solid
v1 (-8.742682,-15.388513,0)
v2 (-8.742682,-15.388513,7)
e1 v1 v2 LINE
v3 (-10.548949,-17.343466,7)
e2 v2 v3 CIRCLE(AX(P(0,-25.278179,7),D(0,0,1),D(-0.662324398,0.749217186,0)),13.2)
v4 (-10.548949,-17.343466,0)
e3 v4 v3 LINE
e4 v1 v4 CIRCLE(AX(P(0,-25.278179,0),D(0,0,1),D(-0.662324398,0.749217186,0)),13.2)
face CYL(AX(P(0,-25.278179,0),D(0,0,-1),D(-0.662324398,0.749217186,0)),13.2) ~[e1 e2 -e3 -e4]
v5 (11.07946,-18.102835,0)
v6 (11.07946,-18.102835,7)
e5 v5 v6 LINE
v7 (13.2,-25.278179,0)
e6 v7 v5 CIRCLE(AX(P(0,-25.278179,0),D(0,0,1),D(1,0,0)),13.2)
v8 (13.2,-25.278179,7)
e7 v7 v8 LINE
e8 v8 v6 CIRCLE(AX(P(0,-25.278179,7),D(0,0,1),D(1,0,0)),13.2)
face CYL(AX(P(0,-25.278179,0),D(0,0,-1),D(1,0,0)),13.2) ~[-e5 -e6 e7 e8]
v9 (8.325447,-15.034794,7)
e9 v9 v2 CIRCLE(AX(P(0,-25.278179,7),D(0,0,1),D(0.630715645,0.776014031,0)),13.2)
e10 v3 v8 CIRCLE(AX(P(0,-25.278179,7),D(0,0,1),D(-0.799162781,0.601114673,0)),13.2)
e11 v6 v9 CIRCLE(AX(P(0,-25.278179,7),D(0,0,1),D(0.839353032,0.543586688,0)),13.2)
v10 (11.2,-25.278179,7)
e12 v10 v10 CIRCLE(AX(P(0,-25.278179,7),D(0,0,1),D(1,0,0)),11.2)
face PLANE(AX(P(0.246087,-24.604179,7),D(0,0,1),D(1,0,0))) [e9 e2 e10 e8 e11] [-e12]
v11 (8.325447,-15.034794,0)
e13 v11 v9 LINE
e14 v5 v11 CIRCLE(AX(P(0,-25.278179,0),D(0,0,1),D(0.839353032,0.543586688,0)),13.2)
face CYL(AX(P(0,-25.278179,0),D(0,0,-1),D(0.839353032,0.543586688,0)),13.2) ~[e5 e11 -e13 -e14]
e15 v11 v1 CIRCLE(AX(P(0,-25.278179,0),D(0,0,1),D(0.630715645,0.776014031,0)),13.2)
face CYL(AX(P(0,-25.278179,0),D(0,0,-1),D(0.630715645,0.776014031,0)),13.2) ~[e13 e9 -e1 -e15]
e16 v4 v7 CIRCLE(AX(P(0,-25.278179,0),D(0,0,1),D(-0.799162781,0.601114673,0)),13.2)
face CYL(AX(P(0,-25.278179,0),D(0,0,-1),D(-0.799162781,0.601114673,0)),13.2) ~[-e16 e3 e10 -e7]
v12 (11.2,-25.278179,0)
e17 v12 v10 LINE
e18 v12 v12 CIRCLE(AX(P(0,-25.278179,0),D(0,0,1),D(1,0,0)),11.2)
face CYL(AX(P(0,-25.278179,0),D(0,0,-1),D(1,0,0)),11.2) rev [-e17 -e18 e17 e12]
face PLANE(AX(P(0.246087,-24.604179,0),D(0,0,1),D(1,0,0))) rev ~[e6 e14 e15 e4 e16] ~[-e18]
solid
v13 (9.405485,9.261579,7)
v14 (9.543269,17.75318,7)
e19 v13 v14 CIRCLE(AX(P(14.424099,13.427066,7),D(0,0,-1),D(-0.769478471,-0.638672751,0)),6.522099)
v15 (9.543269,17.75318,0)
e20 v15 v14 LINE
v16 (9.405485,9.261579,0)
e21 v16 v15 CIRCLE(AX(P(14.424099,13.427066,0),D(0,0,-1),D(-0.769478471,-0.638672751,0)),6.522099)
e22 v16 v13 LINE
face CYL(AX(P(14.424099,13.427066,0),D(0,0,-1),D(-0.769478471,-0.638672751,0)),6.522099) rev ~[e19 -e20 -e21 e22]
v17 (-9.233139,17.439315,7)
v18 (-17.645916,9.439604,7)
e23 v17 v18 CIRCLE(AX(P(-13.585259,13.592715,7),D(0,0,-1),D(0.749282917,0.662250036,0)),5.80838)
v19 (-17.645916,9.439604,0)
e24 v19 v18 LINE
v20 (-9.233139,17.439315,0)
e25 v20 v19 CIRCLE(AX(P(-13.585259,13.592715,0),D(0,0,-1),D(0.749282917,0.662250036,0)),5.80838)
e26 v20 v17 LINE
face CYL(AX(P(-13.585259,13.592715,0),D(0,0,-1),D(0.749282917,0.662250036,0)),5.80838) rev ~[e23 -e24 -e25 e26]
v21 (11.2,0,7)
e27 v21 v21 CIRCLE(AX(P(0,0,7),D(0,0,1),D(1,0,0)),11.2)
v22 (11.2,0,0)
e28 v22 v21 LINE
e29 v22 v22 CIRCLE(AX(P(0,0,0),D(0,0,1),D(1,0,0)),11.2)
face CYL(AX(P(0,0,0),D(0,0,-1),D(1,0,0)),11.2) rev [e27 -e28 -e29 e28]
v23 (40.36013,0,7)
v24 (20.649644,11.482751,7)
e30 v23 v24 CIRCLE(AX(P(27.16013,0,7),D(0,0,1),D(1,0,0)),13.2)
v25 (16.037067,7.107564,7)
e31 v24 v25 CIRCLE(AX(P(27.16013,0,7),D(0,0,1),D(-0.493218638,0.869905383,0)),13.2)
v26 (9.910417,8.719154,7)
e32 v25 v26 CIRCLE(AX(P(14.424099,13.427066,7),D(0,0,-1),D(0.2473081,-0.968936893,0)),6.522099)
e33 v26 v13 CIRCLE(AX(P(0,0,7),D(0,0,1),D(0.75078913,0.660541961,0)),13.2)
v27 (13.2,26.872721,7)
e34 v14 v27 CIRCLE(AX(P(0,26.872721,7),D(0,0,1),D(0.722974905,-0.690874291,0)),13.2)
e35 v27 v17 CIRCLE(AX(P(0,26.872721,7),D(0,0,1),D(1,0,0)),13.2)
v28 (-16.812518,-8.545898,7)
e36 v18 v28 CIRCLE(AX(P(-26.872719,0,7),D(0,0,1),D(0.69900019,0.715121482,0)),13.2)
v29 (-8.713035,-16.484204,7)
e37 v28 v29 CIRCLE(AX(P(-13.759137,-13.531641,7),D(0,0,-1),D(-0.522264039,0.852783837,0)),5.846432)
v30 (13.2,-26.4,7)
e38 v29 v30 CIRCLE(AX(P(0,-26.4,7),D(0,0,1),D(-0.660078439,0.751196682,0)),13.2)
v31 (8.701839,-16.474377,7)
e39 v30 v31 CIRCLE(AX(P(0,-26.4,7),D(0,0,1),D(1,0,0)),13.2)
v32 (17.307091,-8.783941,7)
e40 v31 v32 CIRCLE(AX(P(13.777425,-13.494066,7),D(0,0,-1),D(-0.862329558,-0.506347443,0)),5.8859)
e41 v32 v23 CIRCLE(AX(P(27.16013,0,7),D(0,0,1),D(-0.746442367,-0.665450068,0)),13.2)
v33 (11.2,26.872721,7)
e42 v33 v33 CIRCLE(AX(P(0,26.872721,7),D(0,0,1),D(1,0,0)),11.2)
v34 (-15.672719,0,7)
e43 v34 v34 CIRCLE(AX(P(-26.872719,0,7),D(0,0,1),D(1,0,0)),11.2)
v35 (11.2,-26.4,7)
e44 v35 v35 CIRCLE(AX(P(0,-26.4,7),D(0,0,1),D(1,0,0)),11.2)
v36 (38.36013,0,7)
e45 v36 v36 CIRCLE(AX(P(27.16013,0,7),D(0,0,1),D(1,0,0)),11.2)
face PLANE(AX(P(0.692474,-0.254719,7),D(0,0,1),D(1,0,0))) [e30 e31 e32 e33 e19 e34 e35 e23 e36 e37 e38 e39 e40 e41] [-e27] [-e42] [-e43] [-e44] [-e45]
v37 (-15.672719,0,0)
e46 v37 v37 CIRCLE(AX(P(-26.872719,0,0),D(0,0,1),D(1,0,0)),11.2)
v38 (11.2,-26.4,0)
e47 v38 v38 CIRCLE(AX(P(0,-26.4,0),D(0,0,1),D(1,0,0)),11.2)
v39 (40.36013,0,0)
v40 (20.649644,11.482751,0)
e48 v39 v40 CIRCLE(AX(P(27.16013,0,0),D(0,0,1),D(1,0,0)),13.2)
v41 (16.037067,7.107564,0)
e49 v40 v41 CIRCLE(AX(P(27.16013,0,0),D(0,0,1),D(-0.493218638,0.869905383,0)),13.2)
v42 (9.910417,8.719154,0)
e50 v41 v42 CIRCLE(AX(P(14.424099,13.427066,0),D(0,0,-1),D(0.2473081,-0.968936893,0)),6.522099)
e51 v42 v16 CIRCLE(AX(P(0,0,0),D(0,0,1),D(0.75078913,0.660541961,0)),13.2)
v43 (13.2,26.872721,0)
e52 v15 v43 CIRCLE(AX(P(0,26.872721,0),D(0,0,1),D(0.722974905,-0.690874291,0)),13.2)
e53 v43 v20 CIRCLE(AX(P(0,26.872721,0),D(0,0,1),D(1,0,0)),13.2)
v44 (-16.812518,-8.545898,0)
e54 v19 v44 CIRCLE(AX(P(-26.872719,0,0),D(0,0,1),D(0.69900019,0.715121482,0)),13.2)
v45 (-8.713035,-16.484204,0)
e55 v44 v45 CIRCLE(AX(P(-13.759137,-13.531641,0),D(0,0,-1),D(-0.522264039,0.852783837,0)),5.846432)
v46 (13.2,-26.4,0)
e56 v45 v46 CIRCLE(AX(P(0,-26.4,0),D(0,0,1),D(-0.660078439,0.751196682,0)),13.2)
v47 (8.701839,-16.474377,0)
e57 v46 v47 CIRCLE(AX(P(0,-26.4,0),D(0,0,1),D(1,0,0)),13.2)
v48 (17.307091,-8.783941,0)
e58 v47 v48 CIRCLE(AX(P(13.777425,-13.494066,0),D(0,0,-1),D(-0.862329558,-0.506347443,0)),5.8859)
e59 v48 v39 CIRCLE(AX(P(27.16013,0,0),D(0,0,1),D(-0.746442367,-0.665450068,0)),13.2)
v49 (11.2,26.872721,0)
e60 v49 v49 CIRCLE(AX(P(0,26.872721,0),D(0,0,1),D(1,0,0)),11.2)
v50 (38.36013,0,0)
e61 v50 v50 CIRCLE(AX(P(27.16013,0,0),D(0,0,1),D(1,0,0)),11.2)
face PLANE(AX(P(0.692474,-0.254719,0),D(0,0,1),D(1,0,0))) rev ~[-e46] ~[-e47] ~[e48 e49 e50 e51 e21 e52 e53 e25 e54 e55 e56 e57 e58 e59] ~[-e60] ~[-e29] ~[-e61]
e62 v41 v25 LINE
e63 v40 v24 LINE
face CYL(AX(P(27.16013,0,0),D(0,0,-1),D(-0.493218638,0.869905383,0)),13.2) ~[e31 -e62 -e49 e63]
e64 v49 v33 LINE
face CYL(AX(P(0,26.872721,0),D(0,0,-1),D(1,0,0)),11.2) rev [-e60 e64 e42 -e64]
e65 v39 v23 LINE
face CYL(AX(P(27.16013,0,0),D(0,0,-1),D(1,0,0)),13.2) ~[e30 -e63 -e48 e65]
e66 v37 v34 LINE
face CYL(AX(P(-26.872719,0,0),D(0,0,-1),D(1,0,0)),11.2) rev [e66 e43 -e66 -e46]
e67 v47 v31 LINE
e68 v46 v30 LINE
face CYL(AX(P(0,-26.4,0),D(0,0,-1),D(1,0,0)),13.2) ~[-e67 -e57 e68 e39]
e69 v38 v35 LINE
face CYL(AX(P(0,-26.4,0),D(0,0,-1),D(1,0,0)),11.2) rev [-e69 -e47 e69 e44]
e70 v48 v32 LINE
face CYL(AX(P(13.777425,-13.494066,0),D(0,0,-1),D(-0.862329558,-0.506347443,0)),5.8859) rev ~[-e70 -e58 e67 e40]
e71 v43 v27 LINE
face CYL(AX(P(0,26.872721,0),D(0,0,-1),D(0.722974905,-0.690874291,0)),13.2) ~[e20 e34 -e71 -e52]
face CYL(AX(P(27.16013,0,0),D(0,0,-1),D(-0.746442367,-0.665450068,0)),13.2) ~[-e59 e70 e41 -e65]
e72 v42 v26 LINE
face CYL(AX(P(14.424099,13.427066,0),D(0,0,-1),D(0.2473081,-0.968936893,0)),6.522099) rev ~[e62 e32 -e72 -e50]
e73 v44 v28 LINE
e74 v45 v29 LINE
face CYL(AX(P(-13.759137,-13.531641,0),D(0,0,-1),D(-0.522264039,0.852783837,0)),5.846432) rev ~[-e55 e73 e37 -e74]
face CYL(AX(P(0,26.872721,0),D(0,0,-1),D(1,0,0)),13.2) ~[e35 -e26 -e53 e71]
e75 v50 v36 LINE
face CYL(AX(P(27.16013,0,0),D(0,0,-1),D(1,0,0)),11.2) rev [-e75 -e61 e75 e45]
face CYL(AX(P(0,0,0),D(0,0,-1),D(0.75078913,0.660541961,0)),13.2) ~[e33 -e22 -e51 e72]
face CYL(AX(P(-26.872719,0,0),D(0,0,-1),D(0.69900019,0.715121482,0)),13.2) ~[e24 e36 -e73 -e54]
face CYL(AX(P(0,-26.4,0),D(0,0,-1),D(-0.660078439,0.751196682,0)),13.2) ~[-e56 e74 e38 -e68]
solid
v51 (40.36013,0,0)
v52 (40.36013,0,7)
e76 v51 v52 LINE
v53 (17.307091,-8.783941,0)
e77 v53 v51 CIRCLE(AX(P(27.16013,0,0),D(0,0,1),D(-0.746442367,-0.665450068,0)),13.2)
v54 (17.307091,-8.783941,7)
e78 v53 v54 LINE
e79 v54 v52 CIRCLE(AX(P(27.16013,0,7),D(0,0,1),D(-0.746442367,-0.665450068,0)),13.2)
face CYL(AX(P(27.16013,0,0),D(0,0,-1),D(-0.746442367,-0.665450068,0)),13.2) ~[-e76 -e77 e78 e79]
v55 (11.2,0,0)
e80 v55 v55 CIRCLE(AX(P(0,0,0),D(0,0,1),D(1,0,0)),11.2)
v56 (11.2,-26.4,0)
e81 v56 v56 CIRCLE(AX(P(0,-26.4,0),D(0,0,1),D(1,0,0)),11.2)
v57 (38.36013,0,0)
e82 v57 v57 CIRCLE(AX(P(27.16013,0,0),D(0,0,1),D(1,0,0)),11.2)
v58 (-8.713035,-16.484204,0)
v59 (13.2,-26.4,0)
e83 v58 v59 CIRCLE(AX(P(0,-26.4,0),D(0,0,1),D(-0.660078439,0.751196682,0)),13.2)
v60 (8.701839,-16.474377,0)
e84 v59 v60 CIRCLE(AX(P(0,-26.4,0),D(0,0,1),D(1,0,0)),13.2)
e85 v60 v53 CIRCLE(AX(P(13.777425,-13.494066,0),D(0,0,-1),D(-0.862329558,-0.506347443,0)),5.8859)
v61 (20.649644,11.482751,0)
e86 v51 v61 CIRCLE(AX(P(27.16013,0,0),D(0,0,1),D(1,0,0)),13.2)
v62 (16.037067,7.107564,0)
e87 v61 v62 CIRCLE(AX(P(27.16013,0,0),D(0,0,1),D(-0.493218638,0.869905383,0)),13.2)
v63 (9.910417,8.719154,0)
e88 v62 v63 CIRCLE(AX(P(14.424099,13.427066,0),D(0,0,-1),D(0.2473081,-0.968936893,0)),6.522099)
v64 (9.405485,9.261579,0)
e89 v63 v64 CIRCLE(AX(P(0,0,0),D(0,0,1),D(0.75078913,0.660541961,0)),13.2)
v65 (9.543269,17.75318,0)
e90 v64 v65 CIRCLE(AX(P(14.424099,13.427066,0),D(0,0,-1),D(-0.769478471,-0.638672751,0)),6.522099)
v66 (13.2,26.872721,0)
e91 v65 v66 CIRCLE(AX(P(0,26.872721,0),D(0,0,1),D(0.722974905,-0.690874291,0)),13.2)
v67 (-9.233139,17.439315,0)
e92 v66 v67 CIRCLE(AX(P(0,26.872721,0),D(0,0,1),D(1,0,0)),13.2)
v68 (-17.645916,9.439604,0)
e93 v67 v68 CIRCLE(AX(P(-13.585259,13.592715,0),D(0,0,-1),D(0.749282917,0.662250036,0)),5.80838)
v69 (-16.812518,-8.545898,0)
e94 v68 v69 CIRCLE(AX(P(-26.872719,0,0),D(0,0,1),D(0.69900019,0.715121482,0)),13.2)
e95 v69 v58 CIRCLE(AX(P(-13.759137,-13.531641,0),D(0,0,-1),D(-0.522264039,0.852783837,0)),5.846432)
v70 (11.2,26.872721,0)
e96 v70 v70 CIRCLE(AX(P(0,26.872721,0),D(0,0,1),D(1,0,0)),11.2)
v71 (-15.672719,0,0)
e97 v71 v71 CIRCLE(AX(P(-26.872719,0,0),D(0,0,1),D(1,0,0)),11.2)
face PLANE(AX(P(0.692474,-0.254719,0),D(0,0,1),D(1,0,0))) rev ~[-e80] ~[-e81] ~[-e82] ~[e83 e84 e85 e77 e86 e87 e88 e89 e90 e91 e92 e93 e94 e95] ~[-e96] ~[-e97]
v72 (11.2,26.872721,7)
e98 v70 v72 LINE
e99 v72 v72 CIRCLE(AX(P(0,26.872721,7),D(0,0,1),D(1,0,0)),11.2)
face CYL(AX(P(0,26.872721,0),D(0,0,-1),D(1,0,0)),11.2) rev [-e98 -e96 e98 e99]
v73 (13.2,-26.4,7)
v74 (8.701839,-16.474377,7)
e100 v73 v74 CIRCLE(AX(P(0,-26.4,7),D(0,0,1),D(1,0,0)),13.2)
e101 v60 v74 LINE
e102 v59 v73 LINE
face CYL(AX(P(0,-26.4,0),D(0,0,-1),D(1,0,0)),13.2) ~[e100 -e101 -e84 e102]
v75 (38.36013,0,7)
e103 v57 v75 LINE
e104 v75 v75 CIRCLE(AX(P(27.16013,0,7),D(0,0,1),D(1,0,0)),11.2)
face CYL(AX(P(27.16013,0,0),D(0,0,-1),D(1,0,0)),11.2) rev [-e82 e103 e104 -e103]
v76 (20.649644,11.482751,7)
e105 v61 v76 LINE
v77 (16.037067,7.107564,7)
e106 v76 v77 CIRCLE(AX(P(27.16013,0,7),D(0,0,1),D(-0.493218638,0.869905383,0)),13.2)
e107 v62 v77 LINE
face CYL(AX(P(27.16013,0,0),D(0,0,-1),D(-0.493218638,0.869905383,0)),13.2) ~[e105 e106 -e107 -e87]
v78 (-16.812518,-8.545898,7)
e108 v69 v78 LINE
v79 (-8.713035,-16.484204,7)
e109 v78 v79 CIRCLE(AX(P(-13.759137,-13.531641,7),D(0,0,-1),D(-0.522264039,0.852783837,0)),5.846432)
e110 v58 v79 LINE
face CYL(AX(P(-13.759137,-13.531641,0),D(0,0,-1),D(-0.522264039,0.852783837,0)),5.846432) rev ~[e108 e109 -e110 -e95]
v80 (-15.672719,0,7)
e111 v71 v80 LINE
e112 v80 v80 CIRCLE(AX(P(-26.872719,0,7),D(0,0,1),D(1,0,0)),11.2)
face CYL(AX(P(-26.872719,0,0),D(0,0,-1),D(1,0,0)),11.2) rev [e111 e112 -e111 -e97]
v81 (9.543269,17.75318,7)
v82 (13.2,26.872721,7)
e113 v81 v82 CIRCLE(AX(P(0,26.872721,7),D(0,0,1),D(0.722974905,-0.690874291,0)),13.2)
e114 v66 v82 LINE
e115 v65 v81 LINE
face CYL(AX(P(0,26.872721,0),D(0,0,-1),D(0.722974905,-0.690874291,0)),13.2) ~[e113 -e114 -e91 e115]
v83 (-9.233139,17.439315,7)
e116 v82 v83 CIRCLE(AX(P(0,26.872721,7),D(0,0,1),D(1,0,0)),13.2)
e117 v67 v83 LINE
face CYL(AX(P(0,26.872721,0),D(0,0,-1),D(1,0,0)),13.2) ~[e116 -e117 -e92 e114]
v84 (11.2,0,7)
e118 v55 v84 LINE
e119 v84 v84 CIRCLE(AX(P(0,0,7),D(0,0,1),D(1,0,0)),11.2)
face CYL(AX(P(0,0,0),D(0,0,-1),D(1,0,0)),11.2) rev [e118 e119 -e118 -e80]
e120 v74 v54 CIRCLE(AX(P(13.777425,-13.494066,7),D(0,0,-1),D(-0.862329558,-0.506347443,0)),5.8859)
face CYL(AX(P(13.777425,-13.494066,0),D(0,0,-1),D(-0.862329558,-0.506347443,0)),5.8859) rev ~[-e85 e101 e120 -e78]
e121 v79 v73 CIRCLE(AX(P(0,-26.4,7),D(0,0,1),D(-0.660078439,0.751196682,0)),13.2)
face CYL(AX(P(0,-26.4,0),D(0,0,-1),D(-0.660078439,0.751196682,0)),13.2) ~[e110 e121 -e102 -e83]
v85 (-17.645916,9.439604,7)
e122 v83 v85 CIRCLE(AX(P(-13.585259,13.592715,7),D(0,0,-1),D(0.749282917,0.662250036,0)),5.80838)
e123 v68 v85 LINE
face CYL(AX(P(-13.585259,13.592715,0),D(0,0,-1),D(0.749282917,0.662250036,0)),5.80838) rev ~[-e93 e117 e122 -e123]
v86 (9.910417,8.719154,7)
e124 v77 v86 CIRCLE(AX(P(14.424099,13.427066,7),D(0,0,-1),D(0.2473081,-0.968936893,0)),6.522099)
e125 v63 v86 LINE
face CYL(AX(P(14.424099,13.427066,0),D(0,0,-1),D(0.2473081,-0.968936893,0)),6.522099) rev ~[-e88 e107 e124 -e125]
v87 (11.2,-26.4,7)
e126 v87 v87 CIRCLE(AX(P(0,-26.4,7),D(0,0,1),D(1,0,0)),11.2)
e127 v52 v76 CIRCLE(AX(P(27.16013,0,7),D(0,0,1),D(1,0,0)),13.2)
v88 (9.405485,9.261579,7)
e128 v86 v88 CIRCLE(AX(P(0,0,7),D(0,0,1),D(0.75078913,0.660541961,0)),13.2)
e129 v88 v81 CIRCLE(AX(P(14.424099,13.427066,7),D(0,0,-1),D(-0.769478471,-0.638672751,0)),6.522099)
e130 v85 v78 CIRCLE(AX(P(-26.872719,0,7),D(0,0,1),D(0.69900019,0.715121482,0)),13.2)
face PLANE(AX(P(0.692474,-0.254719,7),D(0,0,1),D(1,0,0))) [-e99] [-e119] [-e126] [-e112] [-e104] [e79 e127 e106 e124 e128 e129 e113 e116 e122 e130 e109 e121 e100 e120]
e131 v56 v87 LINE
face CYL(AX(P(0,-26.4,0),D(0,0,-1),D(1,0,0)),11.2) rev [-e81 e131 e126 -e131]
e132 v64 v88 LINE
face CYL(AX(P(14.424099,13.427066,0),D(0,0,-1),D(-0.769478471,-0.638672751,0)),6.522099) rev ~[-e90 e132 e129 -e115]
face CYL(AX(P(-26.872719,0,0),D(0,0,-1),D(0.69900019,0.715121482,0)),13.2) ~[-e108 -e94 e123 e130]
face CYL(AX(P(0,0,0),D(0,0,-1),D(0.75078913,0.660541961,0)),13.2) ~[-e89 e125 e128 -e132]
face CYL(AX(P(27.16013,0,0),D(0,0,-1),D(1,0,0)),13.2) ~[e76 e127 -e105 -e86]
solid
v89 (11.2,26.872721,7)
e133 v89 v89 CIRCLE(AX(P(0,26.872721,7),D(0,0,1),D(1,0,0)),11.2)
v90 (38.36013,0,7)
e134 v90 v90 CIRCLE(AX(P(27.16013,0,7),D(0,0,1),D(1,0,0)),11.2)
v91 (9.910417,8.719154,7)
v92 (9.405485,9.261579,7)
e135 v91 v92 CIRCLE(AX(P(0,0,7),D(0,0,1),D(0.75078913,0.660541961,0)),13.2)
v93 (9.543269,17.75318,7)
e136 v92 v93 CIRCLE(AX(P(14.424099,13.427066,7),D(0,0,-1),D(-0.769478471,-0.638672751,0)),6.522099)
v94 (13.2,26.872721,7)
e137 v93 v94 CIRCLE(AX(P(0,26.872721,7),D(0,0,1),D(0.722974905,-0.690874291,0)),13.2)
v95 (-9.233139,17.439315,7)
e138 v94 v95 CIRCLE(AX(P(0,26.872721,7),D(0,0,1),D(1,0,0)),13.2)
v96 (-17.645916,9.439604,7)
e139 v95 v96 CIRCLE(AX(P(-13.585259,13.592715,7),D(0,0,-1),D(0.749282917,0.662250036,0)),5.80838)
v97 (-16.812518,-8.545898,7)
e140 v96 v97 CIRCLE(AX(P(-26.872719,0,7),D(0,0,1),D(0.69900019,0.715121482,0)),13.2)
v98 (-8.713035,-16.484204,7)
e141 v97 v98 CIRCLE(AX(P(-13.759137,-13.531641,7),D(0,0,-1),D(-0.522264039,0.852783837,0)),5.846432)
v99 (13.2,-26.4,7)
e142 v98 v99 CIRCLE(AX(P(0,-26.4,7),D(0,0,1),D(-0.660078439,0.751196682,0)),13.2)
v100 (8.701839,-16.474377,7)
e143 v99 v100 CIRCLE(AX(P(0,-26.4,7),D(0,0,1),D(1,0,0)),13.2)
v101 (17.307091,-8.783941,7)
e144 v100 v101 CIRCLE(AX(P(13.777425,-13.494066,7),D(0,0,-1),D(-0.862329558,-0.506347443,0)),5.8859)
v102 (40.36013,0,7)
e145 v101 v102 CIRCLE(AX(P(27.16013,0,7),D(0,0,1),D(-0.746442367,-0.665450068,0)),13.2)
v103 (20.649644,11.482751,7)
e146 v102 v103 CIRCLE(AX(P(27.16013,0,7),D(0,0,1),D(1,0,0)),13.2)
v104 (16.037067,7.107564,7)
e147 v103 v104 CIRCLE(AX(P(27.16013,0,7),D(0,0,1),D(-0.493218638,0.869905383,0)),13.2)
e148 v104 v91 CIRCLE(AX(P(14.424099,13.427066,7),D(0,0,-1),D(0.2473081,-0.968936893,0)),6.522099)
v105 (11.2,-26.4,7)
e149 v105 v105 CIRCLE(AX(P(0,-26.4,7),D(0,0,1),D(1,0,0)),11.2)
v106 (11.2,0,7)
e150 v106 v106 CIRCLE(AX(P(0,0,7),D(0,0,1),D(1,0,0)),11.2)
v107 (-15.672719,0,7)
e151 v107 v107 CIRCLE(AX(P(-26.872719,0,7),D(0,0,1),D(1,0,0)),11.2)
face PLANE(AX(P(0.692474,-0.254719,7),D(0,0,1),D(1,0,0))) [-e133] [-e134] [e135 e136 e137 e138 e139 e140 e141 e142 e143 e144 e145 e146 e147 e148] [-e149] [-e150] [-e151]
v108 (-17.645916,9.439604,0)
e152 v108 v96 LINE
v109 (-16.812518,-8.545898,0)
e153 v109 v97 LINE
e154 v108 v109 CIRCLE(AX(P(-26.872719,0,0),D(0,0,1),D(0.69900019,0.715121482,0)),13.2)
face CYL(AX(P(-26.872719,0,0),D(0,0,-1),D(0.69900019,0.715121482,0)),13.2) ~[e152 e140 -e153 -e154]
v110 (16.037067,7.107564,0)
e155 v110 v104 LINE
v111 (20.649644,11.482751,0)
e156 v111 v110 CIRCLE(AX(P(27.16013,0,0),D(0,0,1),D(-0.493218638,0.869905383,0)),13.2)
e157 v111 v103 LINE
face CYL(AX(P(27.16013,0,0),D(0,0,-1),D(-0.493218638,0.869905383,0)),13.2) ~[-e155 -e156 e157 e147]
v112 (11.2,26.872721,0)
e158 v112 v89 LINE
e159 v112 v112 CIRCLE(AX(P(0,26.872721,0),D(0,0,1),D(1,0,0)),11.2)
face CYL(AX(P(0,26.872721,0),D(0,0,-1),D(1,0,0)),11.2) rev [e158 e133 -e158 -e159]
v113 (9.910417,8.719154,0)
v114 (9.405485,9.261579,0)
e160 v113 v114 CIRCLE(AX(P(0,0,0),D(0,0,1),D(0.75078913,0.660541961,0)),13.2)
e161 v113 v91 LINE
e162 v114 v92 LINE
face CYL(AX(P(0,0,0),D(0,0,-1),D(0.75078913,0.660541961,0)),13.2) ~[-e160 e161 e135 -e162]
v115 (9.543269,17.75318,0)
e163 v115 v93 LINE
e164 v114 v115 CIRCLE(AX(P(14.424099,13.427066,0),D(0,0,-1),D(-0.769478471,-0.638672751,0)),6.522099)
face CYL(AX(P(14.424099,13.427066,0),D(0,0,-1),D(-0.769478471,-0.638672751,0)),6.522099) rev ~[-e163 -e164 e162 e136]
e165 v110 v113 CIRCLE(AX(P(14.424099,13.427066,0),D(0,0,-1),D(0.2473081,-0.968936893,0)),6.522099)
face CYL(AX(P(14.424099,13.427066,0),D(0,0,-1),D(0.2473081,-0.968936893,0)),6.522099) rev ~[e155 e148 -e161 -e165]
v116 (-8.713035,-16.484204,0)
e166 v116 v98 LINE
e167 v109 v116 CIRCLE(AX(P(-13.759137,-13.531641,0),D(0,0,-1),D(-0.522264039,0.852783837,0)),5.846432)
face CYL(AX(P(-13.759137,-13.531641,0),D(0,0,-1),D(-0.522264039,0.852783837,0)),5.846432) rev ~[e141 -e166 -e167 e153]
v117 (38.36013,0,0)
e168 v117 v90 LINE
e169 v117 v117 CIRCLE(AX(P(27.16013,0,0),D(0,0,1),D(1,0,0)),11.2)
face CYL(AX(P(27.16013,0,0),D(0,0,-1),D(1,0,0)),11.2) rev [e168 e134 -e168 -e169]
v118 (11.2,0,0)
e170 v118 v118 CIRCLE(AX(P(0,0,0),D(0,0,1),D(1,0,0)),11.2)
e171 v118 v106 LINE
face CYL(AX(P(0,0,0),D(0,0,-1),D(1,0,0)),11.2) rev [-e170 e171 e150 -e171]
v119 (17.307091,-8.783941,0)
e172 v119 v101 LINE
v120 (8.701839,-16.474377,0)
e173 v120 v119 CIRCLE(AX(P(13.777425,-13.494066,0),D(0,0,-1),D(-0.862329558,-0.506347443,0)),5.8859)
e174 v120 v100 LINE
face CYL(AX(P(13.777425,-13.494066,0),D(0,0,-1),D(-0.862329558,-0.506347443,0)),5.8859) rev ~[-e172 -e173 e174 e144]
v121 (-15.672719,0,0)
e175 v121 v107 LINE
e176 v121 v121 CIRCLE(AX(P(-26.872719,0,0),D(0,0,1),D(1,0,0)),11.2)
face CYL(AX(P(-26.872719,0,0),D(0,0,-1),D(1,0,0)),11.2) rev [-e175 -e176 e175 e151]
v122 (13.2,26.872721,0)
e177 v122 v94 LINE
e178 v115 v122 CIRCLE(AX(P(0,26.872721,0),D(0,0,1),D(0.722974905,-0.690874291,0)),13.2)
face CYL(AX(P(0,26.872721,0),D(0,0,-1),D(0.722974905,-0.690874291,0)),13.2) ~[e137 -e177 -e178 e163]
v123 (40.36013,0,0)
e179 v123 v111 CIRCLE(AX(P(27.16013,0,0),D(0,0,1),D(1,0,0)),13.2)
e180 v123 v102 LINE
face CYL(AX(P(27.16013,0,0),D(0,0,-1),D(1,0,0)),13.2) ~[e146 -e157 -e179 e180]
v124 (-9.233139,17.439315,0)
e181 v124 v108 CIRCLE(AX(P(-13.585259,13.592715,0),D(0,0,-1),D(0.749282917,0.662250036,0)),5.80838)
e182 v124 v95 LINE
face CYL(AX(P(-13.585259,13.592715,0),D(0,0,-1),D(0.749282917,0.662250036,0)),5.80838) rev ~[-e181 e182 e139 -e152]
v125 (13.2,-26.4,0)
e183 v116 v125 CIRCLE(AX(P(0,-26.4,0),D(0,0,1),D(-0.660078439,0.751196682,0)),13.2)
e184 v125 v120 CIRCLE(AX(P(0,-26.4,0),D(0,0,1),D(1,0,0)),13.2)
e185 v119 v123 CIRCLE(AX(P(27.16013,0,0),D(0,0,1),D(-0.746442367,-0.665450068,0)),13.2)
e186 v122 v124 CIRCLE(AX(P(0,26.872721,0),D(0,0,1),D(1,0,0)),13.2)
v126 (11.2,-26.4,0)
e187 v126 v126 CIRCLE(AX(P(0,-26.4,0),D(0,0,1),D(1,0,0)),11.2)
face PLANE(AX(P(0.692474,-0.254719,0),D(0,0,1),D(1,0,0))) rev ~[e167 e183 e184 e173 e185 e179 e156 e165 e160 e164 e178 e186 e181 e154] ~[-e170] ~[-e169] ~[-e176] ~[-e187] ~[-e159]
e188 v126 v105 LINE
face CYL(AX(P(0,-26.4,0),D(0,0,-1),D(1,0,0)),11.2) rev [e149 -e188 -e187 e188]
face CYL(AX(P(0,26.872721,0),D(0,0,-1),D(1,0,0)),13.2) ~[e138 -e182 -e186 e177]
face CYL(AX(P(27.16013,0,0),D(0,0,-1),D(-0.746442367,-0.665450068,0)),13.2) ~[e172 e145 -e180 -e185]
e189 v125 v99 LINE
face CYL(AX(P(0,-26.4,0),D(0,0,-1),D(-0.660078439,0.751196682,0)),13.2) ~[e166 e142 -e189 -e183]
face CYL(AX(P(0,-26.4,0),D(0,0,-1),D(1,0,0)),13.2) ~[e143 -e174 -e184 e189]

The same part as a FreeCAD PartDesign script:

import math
import FreeCAD as App
import Part
import Sketcher
Q = App.Units.Quantity

doc = App.newDocument("Part")
body = doc.addObject("PartDesign::Body", "Body")

# Sketch on XY plane
sketch1 = body.newObject("Sketcher::SketchObject", "Sketch")
sketch1.AttachmentSupport = (doc.getObject("XY_Plane"), [""])
sketch1.MapMode = "FlatFace"
sketch1.addGeometry([
    Part.ArcOfCircle(Part.Circle(App.Vector(0, -25.3, 0), App.Vector(0, 0, 1), 13.2), math.radians(143), math.radians(360)),  # 0
    Part.ArcOfCircle(Part.Circle(App.Vector(0, -25.3, 0), App.Vector(0, 0, 1), 13.2), math.radians(0), math.radians(33)),  # 1
    Part.ArcOfCircle(Part.Circle(App.Vector(0, -25.3, 0), App.Vector(0, 0, 1), 13.2), math.radians(32.93), math.radians(50.9)),  # 2
    Part.ArcOfCircle(Part.Circle(App.Vector(0, -25.3, 0), App.Vector(0, 0, 1), 13.2), math.radians(51), math.radians(131)),  # 3
    Part.ArcOfCircle(Part.Circle(App.Vector(0, -25.3, 0), App.Vector(0, 0, 1), 13.2), math.radians(131.48), math.radians(143.05)),  # 4
    Part.Circle(App.Vector(0, -25.3, 0), App.Vector(0, 0, 1), 11.2),  # 5
], False)
sketch1.addConstraint([
    Sketcher.Constraint("Tangent", 0, 2, 1, 1),
    Sketcher.Constraint("Tangent", 1, 2, 2, 1),
    Sketcher.Constraint("Tangent", 2, 2, 3, 1),
    Sketcher.Constraint("Tangent", 3, 2, 4, 1),
    Sketcher.Constraint("Tangent", 4, 2, 0, 1),
    Sketcher.Constraint("Coincident", 2, 3, 0, 3),
    Sketcher.Constraint("Coincident", 5, 3, 0, 3),
    Sketcher.Constraint("PointOnObject", 0, 3, -2),
    Sketcher.Constraint("Horizontal", 5, 3, 0, 2),
    Sketcher.Constraint("Diameter", 5, Q("22.4 mm")),
    Sketcher.Constraint("Radius", 0, Q("13.2 mm")),
    Sketcher.Constraint("DistanceY", 0, 3, -1, 1, Q("25.278179 mm")),
    Sketcher.Constraint("DistanceX", -1, 1, 1, 2, Q("11.07946 mm")),
    Sketcher.Constraint("DistanceX", 4, 2, -1, 1, Q("10.548949 mm")),
    Sketcher.Constraint("DistanceY", 1, 2, 2, 2, Q("3.068041 mm")),
    Sketcher.Constraint("DistanceX", 3, 2, -1, 1, Q("8.742682 mm")),
])
pad1 = body.newObject("PartDesign::Pad", "Pad")
pad1.Profile = sketch1
pad1.Length = 7
body2 = doc.addObject("PartDesign::Body", "Body001")

# Sketch on XY plane
sketch2 = body2.newObject("Sketcher::SketchObject", "Sketch001")
sketch2.AttachmentSupport = (doc.getObject("XY_Plane001"), [""])
sketch2.MapMode = "FlatFace"
sketch2.addGeometry([
    Part.ArcOfCircle(Part.Circle(App.Vector(13.8, -13.5, 0), App.Vector(0, 0, 1), 5.9), math.radians(53), math.radians(210)),  # 0
    Part.ArcOfCircle(Part.Circle(App.Vector(27.2, 0, 0), App.Vector(0, 0, 1), 13.2), math.radians(-138), math.radians(0)),  # 1
    Part.ArcOfCircle(Part.Circle(App.Vector(27.2, 0, 0), App.Vector(0, 0, 1), 13.2), math.radians(0), math.radians(120)),  # 2
    Part.ArcOfCircle(Part.Circle(App.Vector(27.2, 0, 0), App.Vector(0, 0, 1), 13.2), math.radians(120), math.radians(147)),  # 3
    Part.ArcOfCircle(Part.Circle(App.Vector(14.4, 13.4, 0), App.Vector(0, 0, 1), 6.5), math.radians(-134), math.radians(-76)),  # 4
    Part.ArcOfCircle(Part.Circle(App.Vector(0, 0, 0), App.Vector(0, 0, 1), 13.2), math.radians(41.34), math.radians(44.56)),  # 5
    Part.ArcOfCircle(Part.Circle(App.Vector(14.4, 13.4, 0), App.Vector(0, 0, 1), 6.5), math.radians(138), math.radians(220)),  # 6
    Part.ArcOfCircle(Part.Circle(App.Vector(0, 26.9, 0), App.Vector(0, 0, 1), 13.2), math.radians(-44), math.radians(0)),  # 7
    Part.ArcOfCircle(Part.Circle(App.Vector(0, 26.9, 0), App.Vector(0, 0, 1), 13.2), math.radians(0), math.radians(226)),  # 8
    Part.ArcOfCircle(Part.Circle(App.Vector(-13.6, 13.6, 0), App.Vector(0, 0, 1), 5.8), math.radians(-134), math.radians(41)),  # 9
    Part.ArcOfCircle(Part.Circle(App.Vector(-26.9, 0, 0), App.Vector(0, 0, 1), 13.2), math.radians(46), math.radians(320)),  # 10
    Part.ArcOfCircle(Part.Circle(App.Vector(-13.8, -13.5, 0), App.Vector(0, 0, 1), 5.8), math.radians(-30), math.radians(121)),  # 11
    Part.ArcOfCircle(Part.Circle(App.Vector(0, -26.4, 0), App.Vector(0, 0, 1), 13.2), math.radians(131), math.radians(360)),  # 12
    Part.ArcOfCircle(Part.Circle(App.Vector(0, -26.4, 0), App.Vector(0, 0, 1), 13.2), math.radians(0), math.radians(49)),  # 13
    Part.Circle(App.Vector(0, -26.4, 0), App.Vector(0, 0, 1), 11.2),  # 14
    Part.Circle(App.Vector(-26.9, 0, 0), App.Vector(0, 0, 1), 11.2),  # 15
    Part.Circle(App.Vector(0, 0, 0), App.Vector(0, 0, 1), 11.2),  # 16
    Part.Circle(App.Vector(27.2, 0, 0), App.Vector(0, 0, 1), 11.2),  # 17
    Part.Circle(App.Vector(0, 26.9, 0), App.Vector(0, 0, 1), 11.2),  # 18
], False)
sketch2.addConstraint([
    Sketcher.Constraint("Coincident", 0, 1, 1, 1),
    Sketcher.Constraint("Tangent", 1, 2, 2, 1),
    Sketcher.Constraint("Tangent", 2, 2, 3, 1),
    Sketcher.Constraint("Coincident", 3, 2, 4, 2),
    Sketcher.Constraint("Coincident", 4, 1, 5, 1),
    Sketcher.Constraint("Coincident", 5, 2, 6, 2),
    Sketcher.Constraint("Coincident", 6, 1, 7, 1),
    Sketcher.Constraint("Tangent", 7, 2, 8, 1),
    Sketcher.Constraint("Coincident", 8, 2, 9, 2),
    Sketcher.Constraint("Coincident", 9, 1, 10, 1),
    Sketcher.Constraint("Coincident", 10, 2, 11, 2),
    Sketcher.Constraint("Coincident", 11, 1, 12, 1),
    Sketcher.Constraint("Tangent", 12, 2, 13, 1),
    Sketcher.Constraint("Coincident", 13, 2, 0, 2),
    Sketcher.Constraint("Coincident", 5, 3, -1, 1),
    Sketcher.Constraint("Coincident", 16, 3, -1, 1),
    Sketcher.Constraint("Coincident", 3, 3, 1, 3),
    Sketcher.Constraint("Coincident", 6, 3, 4, 3),
    Sketcher.Constraint("Coincident", 14, 3, 12, 3),
    Sketcher.Constraint("Coincident", 15, 3, 10, 3),
    Sketcher.Constraint("Coincident", 17, 3, 1, 3),
    Sketcher.Constraint("Coincident", 18, 3, 7, 3),
    Sketcher.Constraint("Equal", 3, 5),
    Sketcher.Constraint("Equal", 4, 6),
    Sketcher.Constraint("Equal", 5, 7),
    Sketcher.Constraint("Equal", 7, 8),
    Sketcher.Constraint("Equal", 8, 10),
    Sketcher.Constraint("Equal", 10, 12),
    Sketcher.Constraint("Equal", 12, 13),
    Sketcher.Constraint("Equal", 14, 15),
    Sketcher.Constraint("Equal", 15, 16),
    Sketcher.Constraint("Equal", 16, 17),
    Sketcher.Constraint("Equal", 17, 18),
    Sketcher.Constraint("PointOnObject", 1, 3, -1),
    Sketcher.Constraint("PointOnObject", 7, 3, -2),
    Sketcher.Constraint("PointOnObject", 10, 3, -1),
    Sketcher.Constraint("PointOnObject", 12, 3, -2),
    Sketcher.Constraint("PointOnObject", 1, 2, -1),
    Sketcher.Constraint("Horizontal", 18, 3, 7, 2),
    Sketcher.Constraint("Horizontal", 14, 3, 12, 2),
    Sketcher.Constraint("Diameter", 14, Q("22.4 mm")),
    Sketcher.Constraint("Radius", 1, Q("13.2 mm")),
    Sketcher.Constraint("DistanceY", 12, 3, -1, 1, Q("26.4 mm")),
    Sketcher.Constraint("Radius", 0, Q("5.8859 mm")),
    Sketcher.Constraint("Radius", 4, Q("6.522099 mm")),
    Sketcher.Constraint("Radius", 9, Q("5.80838 mm")),
    Sketcher.Constraint("Radius", 11, Q("5.846432 mm")),
    Sketcher.Constraint("DistanceX", -1, 1, 4, 3, Q("14.424099 mm")),
    Sketcher.Constraint("DistanceY", 3, 2, 4, 3, Q("6.319502 mm")),
    Sketcher.Constraint("DistanceY", 5, 2, 6, 1, Q("8.491601 mm")),
    Sketcher.Constraint("DistanceX", 6, 1, 3, 2, Q("6.493799 mm")),
    Sketcher.Constraint("DistanceY", 9, 3, 8, 2, Q("3.8466 mm")),
    Sketcher.Constraint("DistanceX", 10, 3, 10, 2, Q("10.0602 mm")),
    Sketcher.Constraint("DistanceY", 10, 2, 9, 1, Q("17.985501 mm")),
    Sketcher.Constraint("DistanceX", 11, 3, 11, 1, Q("5.046102 mm")),
    Sketcher.Constraint("DistanceX", 9, 3, -1, 1, Q("13.585259 mm")),
    Sketcher.Constraint("DistanceX", -1, 1, 0, 1, Q("17.307091 mm")),
    Sketcher.Constraint("DistanceY", -1, 1, 2, 2, Q("11.482751 mm")),
    Sketcher.Constraint("DistanceX", -1, 1, 13, 2, Q("8.701839 mm")),
])
pad2 = body2.newObject("PartDesign::Pad", "Pad001")
pad2.Profile = sketch2
pad2.Length = 7
body3 = doc.addObject("PartDesign::Body", "Body002")

# Sketch on XY plane
sketch3 = body3.newObject("Sketcher::SketchObject", "Sketch002")
sketch3.AttachmentSupport = (doc.getObject("XY_Plane002"), [""])
sketch3.MapMode = "FlatFace"
sketch3.addGeometry([
    Part.ArcOfCircle(Part.Circle(App.Vector(13.8, -13.5, 0), App.Vector(0, 0, 1), 5.9), math.radians(53), math.radians(210)),  # 0
    Part.ArcOfCircle(Part.Circle(App.Vector(27.2, 0, 0), App.Vector(0, 0, 1), 13.2), math.radians(-138), math.radians(0)),  # 1
    Part.ArcOfCircle(Part.Circle(App.Vector(27.2, 0, 0), App.Vector(0, 0, 1), 13.2), math.radians(0), math.radians(120)),  # 2
    Part.ArcOfCircle(Part.Circle(App.Vector(27.2, 0, 0), App.Vector(0, 0, 1), 13.2), math.radians(120), math.radians(147)),  # 3
    Part.ArcOfCircle(Part.Circle(App.Vector(14.4, 13.4, 0), App.Vector(0, 0, 1), 6.5), math.radians(-134), math.radians(-76)),  # 4
    Part.ArcOfCircle(Part.Circle(App.Vector(0, 0, 0), App.Vector(0, 0, 1), 13.2), math.radians(41.34), math.radians(44.56)),  # 5
    Part.ArcOfCircle(Part.Circle(App.Vector(14.4, 13.4, 0), App.Vector(0, 0, 1), 6.5), math.radians(138), math.radians(220)),  # 6
    Part.ArcOfCircle(Part.Circle(App.Vector(0, 26.9, 0), App.Vector(0, 0, 1), 13.2), math.radians(-44), math.radians(0)),  # 7
    Part.ArcOfCircle(Part.Circle(App.Vector(0, 26.9, 0), App.Vector(0, 0, 1), 13.2), math.radians(0), math.radians(226)),  # 8
    Part.ArcOfCircle(Part.Circle(App.Vector(-13.6, 13.6, 0), App.Vector(0, 0, 1), 5.8), math.radians(-134), math.radians(41)),  # 9
    Part.ArcOfCircle(Part.Circle(App.Vector(-26.9, 0, 0), App.Vector(0, 0, 1), 13.2), math.radians(46), math.radians(320)),  # 10
    Part.ArcOfCircle(Part.Circle(App.Vector(-13.8, -13.5, 0), App.Vector(0, 0, 1), 5.8), math.radians(-30), math.radians(121)),  # 11
    Part.ArcOfCircle(Part.Circle(App.Vector(0, -26.4, 0), App.Vector(0, 0, 1), 13.2), math.radians(131), math.radians(360)),  # 12
    Part.ArcOfCircle(Part.Circle(App.Vector(0, -26.4, 0), App.Vector(0, 0, 1), 13.2), math.radians(0), math.radians(49)),  # 13
    Part.Circle(App.Vector(0, -26.4, 0), App.Vector(0, 0, 1), 11.2),  # 14
    Part.Circle(App.Vector(-26.9, 0, 0), App.Vector(0, 0, 1), 11.2),  # 15
    Part.Circle(App.Vector(0, 0, 0), App.Vector(0, 0, 1), 11.2),  # 16
    Part.Circle(App.Vector(27.2, 0, 0), App.Vector(0, 0, 1), 11.2),  # 17
    Part.Circle(App.Vector(0, 26.9, 0), App.Vector(0, 0, 1), 11.2),  # 18
], False)
sketch3.addConstraint([
    Sketcher.Constraint("Coincident", 0, 1, 1, 1),
    Sketcher.Constraint("Tangent", 1, 2, 2, 1),
    Sketcher.Constraint("Tangent", 2, 2, 3, 1),
    Sketcher.Constraint("Coincident", 3, 2, 4, 2),
    Sketcher.Constraint("Coincident", 4, 1, 5, 1),
    Sketcher.Constraint("Coincident", 5, 2, 6, 2),
    Sketcher.Constraint("Coincident", 6, 1, 7, 1),
    Sketcher.Constraint("Tangent", 7, 2, 8, 1),
    Sketcher.Constraint("Coincident", 8, 2, 9, 2),
    Sketcher.Constraint("Coincident", 9, 1, 10, 1),
    Sketcher.Constraint("Coincident", 10, 2, 11, 2),
    Sketcher.Constraint("Coincident", 11, 1, 12, 1),
    Sketcher.Constraint("Tangent", 12, 2, 13, 1),
    Sketcher.Constraint("Coincident", 13, 2, 0, 2),
    Sketcher.Constraint("Coincident", 5, 3, -1, 1),
    Sketcher.Constraint("Coincident", 16, 3, -1, 1),
    Sketcher.Constraint("Coincident", 3, 3, 1, 3),
    Sketcher.Constraint("Coincident", 6, 3, 4, 3),
    Sketcher.Constraint("Coincident", 14, 3, 12, 3),
    Sketcher.Constraint("Coincident", 15, 3, 10, 3),
    Sketcher.Constraint("Coincident", 17, 3, 1, 3),
    Sketcher.Constraint("Coincident", 18, 3, 7, 3),
    Sketcher.Constraint("Equal", 3, 5),
    Sketcher.Constraint("Equal", 4, 6),
    Sketcher.Constraint("Equal", 5, 7),
    Sketcher.Constraint("Equal", 7, 8),
    Sketcher.Constraint("Equal", 8, 10),
    Sketcher.Constraint("Equal", 10, 12),
    Sketcher.Constraint("Equal", 12, 13),
    Sketcher.Constraint("Equal", 14, 15),
    Sketcher.Constraint("Equal", 15, 16),
    Sketcher.Constraint("Equal", 16, 17),
    Sketcher.Constraint("Equal", 17, 18),
    Sketcher.Constraint("PointOnObject", 1, 3, -1),
    Sketcher.Constraint("PointOnObject", 7, 3, -2),
    Sketcher.Constraint("PointOnObject", 10, 3, -1),
    Sketcher.Constraint("PointOnObject", 12, 3, -2),
    Sketcher.Constraint("PointOnObject", 1, 2, -1),
    Sketcher.Constraint("Horizontal", 18, 3, 7, 2),
    Sketcher.Constraint("Horizontal", 14, 3, 12, 2),
    Sketcher.Constraint("Diameter", 14, Q("22.4 mm")),
    Sketcher.Constraint("Radius", 1, Q("13.2 mm")),
    Sketcher.Constraint("DistanceY", 12, 3, -1, 1, Q("26.4 mm")),
    Sketcher.Constraint("Radius", 0, Q("5.8859 mm")),
    Sketcher.Constraint("Radius", 4, Q("6.522099 mm")),
    Sketcher.Constraint("Radius", 9, Q("5.80838 mm")),
    Sketcher.Constraint("Radius", 11, Q("5.846432 mm")),
    Sketcher.Constraint("DistanceX", -1, 1, 4, 3, Q("14.424099 mm")),
    Sketcher.Constraint("DistanceY", 3, 2, 4, 3, Q("6.319502 mm")),
    Sketcher.Constraint("DistanceY", 5, 2, 6, 1, Q("8.491601 mm")),
    Sketcher.Constraint("DistanceX", 6, 1, 3, 2, Q("6.493799 mm")),
    Sketcher.Constraint("DistanceY", 9, 3, 8, 2, Q("3.8466 mm")),
    Sketcher.Constraint("DistanceX", 10, 3, 10, 2, Q("10.0602 mm")),
    Sketcher.Constraint("DistanceY", 10, 2, 9, 1, Q("17.985501 mm")),
    Sketcher.Constraint("DistanceX", 11, 3, 11, 1, Q("5.046102 mm")),
    Sketcher.Constraint("DistanceX", 9, 3, -1, 1, Q("13.585259 mm")),
    Sketcher.Constraint("DistanceX", -1, 1, 0, 1, Q("17.307091 mm")),
    Sketcher.Constraint("DistanceY", -1, 1, 2, 2, Q("11.482751 mm")),
    Sketcher.Constraint("DistanceX", -1, 1, 13, 2, Q("8.701839 mm")),
])
pad3 = body3.newObject("PartDesign::Pad", "Pad002")
pad3.Profile = sketch3
pad3.Length = 7
body4 = doc.addObject("PartDesign::Body", "Body003")

# Sketch on XY plane
sketch4 = body4.newObject("Sketcher::SketchObject", "Sketch003")
sketch4.AttachmentSupport = (doc.getObject("XY_Plane003"), [""])
sketch4.MapMode = "FlatFace"
sketch4.addGeometry([
    Part.ArcOfCircle(Part.Circle(App.Vector(13.8, -13.5, 0), App.Vector(0, 0, 1), 5.9), math.radians(53), math.radians(210)),  # 0
    Part.ArcOfCircle(Part.Circle(App.Vector(27.2, 0, 0), App.Vector(0, 0, 1), 13.2), math.radians(-138), math.radians(0)),  # 1
    Part.ArcOfCircle(Part.Circle(App.Vector(27.2, 0, 0), App.Vector(0, 0, 1), 13.2), math.radians(0), math.radians(120)),  # 2
    Part.ArcOfCircle(Part.Circle(App.Vector(27.2, 0, 0), App.Vector(0, 0, 1), 13.2), math.radians(120), math.radians(147)),  # 3
    Part.ArcOfCircle(Part.Circle(App.Vector(14.4, 13.4, 0), App.Vector(0, 0, 1), 6.5), math.radians(-134), math.radians(-76)),  # 4
    Part.ArcOfCircle(Part.Circle(App.Vector(0, 0, 0), App.Vector(0, 0, 1), 13.2), math.radians(41.34), math.radians(44.56)),  # 5
    Part.ArcOfCircle(Part.Circle(App.Vector(14.4, 13.4, 0), App.Vector(0, 0, 1), 6.5), math.radians(138), math.radians(220)),  # 6
    Part.ArcOfCircle(Part.Circle(App.Vector(0, 26.9, 0), App.Vector(0, 0, 1), 13.2), math.radians(-44), math.radians(0)),  # 7
    Part.ArcOfCircle(Part.Circle(App.Vector(0, 26.9, 0), App.Vector(0, 0, 1), 13.2), math.radians(0), math.radians(226)),  # 8
    Part.ArcOfCircle(Part.Circle(App.Vector(-13.6, 13.6, 0), App.Vector(0, 0, 1), 5.8), math.radians(-134), math.radians(41)),  # 9
    Part.ArcOfCircle(Part.Circle(App.Vector(-26.9, 0, 0), App.Vector(0, 0, 1), 13.2), math.radians(46), math.radians(320)),  # 10
    Part.ArcOfCircle(Part.Circle(App.Vector(-13.8, -13.5, 0), App.Vector(0, 0, 1), 5.8), math.radians(-30), math.radians(121)),  # 11
    Part.ArcOfCircle(Part.Circle(App.Vector(0, -26.4, 0), App.Vector(0, 0, 1), 13.2), math.radians(131), math.radians(360)),  # 12
    Part.ArcOfCircle(Part.Circle(App.Vector(0, -26.4, 0), App.Vector(0, 0, 1), 13.2), math.radians(0), math.radians(49)),  # 13
    Part.Circle(App.Vector(0, -26.4, 0), App.Vector(0, 0, 1), 11.2),  # 14
    Part.Circle(App.Vector(-26.9, 0, 0), App.Vector(0, 0, 1), 11.2),  # 15
    Part.Circle(App.Vector(0, 0, 0), App.Vector(0, 0, 1), 11.2),  # 16
    Part.Circle(App.Vector(27.2, 0, 0), App.Vector(0, 0, 1), 11.2),  # 17
    Part.Circle(App.Vector(0, 26.9, 0), App.Vector(0, 0, 1), 11.2),  # 18
], False)
sketch4.addConstraint([
    Sketcher.Constraint("Coincident", 0, 1, 1, 1),
    Sketcher.Constraint("Tangent", 1, 2, 2, 1),
    Sketcher.Constraint("Tangent", 2, 2, 3, 1),
    Sketcher.Constraint("Coincident", 3, 2, 4, 2),
    Sketcher.Constraint("Coincident", 4, 1, 5, 1),
    Sketcher.Constraint("Coincident", 5, 2, 6, 2),
    Sketcher.Constraint("Coincident", 6, 1, 7, 1),
    Sketcher.Constraint("Tangent", 7, 2, 8, 1),
    Sketcher.Constraint("Coincident", 8, 2, 9, 2),
    Sketcher.Constraint("Coincident", 9, 1, 10, 1),
    Sketcher.Constraint("Coincident", 10, 2, 11, 2),
    Sketcher.Constraint("Coincident", 11, 1, 12, 1),
    Sketcher.Constraint("Tangent", 12, 2, 13, 1),
    Sketcher.Constraint("Coincident", 13, 2, 0, 2),
    Sketcher.Constraint("Coincident", 5, 3, -1, 1),
    Sketcher.Constraint("Coincident", 16, 3, -1, 1),
    Sketcher.Constraint("Coincident", 3, 3, 1, 3),
    Sketcher.Constraint("Coincident", 6, 3, 4, 3),
    Sketcher.Constraint("Coincident", 14, 3, 12, 3),
    Sketcher.Constraint("Coincident", 15, 3, 10, 3),
    Sketcher.Constraint("Coincident", 17, 3, 1, 3),
    Sketcher.Constraint("Coincident", 18, 3, 7, 3),
    Sketcher.Constraint("Equal", 3, 5),
    Sketcher.Constraint("Equal", 4, 6),
    Sketcher.Constraint("Equal", 5, 7),
    Sketcher.Constraint("Equal", 7, 8),
    Sketcher.Constraint("Equal", 8, 10),
    Sketcher.Constraint("Equal", 10, 12),
    Sketcher.Constraint("Equal", 12, 13),
    Sketcher.Constraint("Equal", 14, 15),
    Sketcher.Constraint("Equal", 15, 16),
    Sketcher.Constraint("Equal", 16, 17),
    Sketcher.Constraint("Equal", 17, 18),
    Sketcher.Constraint("PointOnObject", 1, 3, -1),
    Sketcher.Constraint("PointOnObject", 7, 3, -2),
    Sketcher.Constraint("PointOnObject", 10, 3, -1),
    Sketcher.Constraint("PointOnObject", 12, 3, -2),
    Sketcher.Constraint("PointOnObject", 1, 2, -1),
    Sketcher.Constraint("Horizontal", 18, 3, 7, 2),
    Sketcher.Constraint("Horizontal", 14, 3, 12, 2),
    Sketcher.Constraint("Diameter", 14, Q("22.4 mm")),
    Sketcher.Constraint("Radius", 1, Q("13.2 mm")),
    Sketcher.Constraint("DistanceY", 12, 3, -1, 1, Q("26.4 mm")),
    Sketcher.Constraint("Radius", 0, Q("5.8859 mm")),
    Sketcher.Constraint("Radius", 4, Q("6.522099 mm")),
    Sketcher.Constraint("Radius", 9, Q("5.80838 mm")),
    Sketcher.Constraint("Radius", 11, Q("5.846432 mm")),
    Sketcher.Constraint("DistanceX", -1, 1, 4, 3, Q("14.424099 mm")),
    Sketcher.Constraint("DistanceY", 3, 2, 4, 3, Q("6.319502 mm")),
    Sketcher.Constraint("DistanceY", 5, 2, 6, 1, Q("8.491601 mm")),
    Sketcher.Constraint("DistanceX", 6, 1, 3, 2, Q("6.493799 mm")),
    Sketcher.Constraint("DistanceY", 9, 3, 8, 2, Q("3.8466 mm")),
    Sketcher.Constraint("DistanceX", 10, 3, 10, 2, Q("10.0602 mm")),
    Sketcher.Constraint("DistanceY", 10, 2, 9, 1, Q("17.985501 mm")),
    Sketcher.Constraint("DistanceX", 11, 3, 11, 1, Q("5.046102 mm")),
    Sketcher.Constraint("DistanceX", 9, 3, -1, 1, Q("13.585259 mm")),
    Sketcher.Constraint("DistanceX", -1, 1, 0, 1, Q("17.307091 mm")),
    Sketcher.Constraint("DistanceY", -1, 1, 2, 2, Q("11.482751 mm")),
    Sketcher.Constraint("DistanceX", -1, 1, 13, 2, Q("8.701839 mm")),
])
pad4 = body4.newObject("PartDesign::Pad", "Pad003")
pad4.Profile = sketch4
pad4.Length = 7

doc.recompute()
